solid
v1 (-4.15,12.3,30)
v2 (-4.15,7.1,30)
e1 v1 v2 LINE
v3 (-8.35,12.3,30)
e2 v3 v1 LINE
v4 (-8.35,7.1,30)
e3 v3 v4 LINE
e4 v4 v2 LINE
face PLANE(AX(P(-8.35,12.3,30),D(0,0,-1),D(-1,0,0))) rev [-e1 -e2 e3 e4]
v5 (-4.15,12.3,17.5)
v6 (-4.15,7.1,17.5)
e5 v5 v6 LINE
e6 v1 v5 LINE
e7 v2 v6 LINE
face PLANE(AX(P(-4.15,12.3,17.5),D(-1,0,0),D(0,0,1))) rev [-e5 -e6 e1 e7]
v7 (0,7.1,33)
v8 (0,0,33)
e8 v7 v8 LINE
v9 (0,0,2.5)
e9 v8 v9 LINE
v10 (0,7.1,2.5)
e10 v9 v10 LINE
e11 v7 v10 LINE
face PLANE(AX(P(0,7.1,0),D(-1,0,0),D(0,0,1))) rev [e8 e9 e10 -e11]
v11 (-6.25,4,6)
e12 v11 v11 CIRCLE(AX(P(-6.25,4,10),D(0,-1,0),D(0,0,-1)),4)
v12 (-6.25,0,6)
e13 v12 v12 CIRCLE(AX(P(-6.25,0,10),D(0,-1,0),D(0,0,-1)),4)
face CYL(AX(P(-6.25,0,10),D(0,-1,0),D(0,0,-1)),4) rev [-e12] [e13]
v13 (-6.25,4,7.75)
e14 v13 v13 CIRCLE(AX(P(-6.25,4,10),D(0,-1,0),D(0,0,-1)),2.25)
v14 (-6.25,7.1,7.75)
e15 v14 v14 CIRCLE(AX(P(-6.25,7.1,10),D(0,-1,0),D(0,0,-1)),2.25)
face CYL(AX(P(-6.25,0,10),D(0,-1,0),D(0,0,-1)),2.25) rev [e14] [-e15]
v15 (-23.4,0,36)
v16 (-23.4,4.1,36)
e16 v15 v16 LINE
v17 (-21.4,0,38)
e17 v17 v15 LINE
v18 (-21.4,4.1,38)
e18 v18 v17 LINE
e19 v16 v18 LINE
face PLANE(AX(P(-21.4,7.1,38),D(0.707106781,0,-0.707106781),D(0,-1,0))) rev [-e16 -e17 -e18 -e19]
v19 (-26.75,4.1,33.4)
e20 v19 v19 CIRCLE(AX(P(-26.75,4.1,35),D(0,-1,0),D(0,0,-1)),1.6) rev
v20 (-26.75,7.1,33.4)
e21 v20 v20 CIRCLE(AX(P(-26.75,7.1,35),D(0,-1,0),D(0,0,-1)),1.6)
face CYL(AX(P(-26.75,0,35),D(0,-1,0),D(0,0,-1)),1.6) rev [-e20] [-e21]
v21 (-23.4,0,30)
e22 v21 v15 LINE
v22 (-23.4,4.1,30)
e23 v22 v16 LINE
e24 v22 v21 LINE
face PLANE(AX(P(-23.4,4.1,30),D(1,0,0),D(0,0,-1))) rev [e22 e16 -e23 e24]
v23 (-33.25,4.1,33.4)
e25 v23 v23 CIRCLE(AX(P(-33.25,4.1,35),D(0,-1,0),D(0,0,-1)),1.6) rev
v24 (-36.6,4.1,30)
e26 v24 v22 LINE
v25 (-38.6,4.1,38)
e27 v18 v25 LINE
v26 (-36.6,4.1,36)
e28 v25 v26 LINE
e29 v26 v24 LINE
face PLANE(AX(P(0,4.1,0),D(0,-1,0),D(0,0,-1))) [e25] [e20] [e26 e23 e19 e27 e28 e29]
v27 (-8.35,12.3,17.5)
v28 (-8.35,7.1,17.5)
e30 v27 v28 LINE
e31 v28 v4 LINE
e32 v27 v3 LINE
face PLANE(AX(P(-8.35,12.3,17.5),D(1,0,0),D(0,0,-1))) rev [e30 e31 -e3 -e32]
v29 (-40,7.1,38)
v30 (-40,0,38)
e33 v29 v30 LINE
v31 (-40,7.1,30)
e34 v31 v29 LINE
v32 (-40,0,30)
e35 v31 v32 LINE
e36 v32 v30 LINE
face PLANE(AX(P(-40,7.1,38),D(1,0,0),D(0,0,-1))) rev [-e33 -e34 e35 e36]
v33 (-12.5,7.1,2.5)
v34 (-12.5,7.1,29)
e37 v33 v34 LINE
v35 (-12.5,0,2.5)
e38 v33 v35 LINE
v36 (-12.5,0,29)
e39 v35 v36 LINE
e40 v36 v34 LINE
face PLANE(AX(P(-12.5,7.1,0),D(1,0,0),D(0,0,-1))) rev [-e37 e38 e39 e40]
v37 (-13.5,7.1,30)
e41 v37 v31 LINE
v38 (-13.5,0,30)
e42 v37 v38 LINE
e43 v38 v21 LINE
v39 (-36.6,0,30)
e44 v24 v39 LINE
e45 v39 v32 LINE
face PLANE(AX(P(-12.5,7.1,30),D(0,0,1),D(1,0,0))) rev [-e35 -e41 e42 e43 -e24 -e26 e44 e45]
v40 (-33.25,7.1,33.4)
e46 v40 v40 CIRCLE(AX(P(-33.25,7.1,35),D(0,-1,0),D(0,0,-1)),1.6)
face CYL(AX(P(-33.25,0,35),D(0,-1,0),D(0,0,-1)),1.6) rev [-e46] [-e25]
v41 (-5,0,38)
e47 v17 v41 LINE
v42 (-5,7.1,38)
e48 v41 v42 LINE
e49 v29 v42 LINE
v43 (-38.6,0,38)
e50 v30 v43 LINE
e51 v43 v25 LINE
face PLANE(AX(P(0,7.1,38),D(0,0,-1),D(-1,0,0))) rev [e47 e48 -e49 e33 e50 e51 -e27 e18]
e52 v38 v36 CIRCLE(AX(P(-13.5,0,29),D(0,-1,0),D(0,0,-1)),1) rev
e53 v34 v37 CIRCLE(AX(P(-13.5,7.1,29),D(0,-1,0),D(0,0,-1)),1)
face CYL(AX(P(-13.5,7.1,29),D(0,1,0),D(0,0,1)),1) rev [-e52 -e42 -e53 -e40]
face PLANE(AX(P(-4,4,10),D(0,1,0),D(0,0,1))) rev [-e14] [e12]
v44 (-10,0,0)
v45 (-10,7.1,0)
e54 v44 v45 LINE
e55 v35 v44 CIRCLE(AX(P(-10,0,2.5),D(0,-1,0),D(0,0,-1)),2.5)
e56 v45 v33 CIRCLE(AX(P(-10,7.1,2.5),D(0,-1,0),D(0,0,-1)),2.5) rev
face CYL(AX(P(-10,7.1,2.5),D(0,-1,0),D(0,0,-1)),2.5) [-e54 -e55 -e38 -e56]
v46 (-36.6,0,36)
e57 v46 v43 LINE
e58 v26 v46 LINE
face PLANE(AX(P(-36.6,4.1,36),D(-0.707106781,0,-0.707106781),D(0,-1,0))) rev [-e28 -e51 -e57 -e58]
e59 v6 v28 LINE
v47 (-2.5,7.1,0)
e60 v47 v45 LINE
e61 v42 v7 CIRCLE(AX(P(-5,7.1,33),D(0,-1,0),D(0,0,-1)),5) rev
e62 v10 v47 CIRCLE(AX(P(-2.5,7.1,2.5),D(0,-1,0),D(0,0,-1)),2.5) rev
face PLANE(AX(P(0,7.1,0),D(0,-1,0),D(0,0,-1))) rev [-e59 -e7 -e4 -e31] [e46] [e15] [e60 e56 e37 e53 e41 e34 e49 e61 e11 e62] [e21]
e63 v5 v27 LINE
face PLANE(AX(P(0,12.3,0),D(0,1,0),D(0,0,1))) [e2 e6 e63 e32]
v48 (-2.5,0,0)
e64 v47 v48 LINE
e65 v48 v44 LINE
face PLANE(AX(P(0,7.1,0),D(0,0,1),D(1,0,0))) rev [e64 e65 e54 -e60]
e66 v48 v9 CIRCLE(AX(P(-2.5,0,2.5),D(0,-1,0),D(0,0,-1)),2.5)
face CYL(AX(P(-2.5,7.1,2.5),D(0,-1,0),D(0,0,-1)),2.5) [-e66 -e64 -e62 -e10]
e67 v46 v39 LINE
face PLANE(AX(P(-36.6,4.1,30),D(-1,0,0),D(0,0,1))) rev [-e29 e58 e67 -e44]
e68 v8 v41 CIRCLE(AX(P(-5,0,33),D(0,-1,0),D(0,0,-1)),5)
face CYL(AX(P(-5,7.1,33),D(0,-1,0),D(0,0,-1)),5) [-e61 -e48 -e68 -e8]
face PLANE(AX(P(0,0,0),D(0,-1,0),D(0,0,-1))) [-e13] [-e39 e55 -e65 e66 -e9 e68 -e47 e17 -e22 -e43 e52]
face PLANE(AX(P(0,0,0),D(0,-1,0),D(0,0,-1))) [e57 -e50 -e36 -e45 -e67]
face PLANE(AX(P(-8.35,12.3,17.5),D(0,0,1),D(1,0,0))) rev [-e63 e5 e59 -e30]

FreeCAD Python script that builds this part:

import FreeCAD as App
import Part
import Sketcher
from FreeCAD import Vector
Q = App.Units.Quantity


def edges_at(feature, points):
    """Names of the edges that pass closest to the given points."""
    edges = feature.Shape.Edges
    near = lambda p: min(range(len(edges)), key=lambda i: edges[i].distToShape(Part.Vertex(*p))[0])
    return sorted({f"Edge{near(p) + 1}" for p in points})


def add_polygon(sketch, points):
    """Adds a closed chain of lines whose ends are joined by coincident constraints."""
    first, n = sketch.GeometryCount, len(points)
    for a, b in zip(points, points[1:] + points[:1]):
        sketch.addGeometry(Part.LineSegment(App.Vector(*a, 0), App.Vector(*b, 0)), False)
    for i in range(n):
        sketch.addConstraint(Sketcher.Constraint("Coincident", first + i, 2, first + (i + 1) % n, 1))

doc = App.newDocument("Part")
body = doc.addObject("PartDesign::Body", "Body")

# Sketch on XZ plane
sketch1 = body.newObject("Sketcher::SketchObject", "Sketch")
sketch1.AttachmentSupport = (doc.getObject("XZ_Plane"), [""])
sketch1.MapMode = "FlatFace"
add_polygon(sketch1, [(0, 0), (-12.5, 0), (-12.5, 30), (-40, 30), (-40, 38), (0, 38)])  # lines 0-5
sketch1.addConstraint([
    Sketcher.Constraint("Horizontal", 0),
    Sketcher.Constraint("Vertical", 1),
    Sketcher.Constraint("Horizontal", 2),
    Sketcher.Constraint("Vertical", 3),
    Sketcher.Constraint("Horizontal", 4),
    Sketcher.Constraint("Vertical", 5),
    Sketcher.Constraint("Coincident", 5, 2, -1, 1),
    Sketcher.Constraint("DistanceX", 4, 1, 4, 2, Q("40 mm")),
    Sketcher.Constraint("DistanceY", 1, 1, 1, 2, Q("30 mm")),
    Sketcher.Constraint("DistanceY", 3, 1, 3, 2, Q("8 mm")),
    Sketcher.Constraint("DistanceX", 0, 2, 0, 1, Q("12.5 mm")),
])
pad1 = body.newObject("PartDesign::Pad", "Pad")
pad1.Profile = sketch1
pad1.Length = 7.1
pad1.Reversed = True

# Sketch on XZ plane
sketch2 = body.newObject("Sketcher::SketchObject", "Sketch001")
sketch2.AttachmentSupport = (doc.getObject("XZ_Plane"), [""])
sketch2.MapMode = "FlatFace"
sketch2.AttachmentOffset = App.Placement(Vector(0, 0, -7.1), App.Rotation())
add_polygon(sketch2, [(-8.35, 17.5), (-8.35, 30), (-4.15, 30), (-4.15, 17.5)])  # lines 0-3
sketch2.addConstraint([
    Sketcher.Constraint("Vertical", 0),
    Sketcher.Constraint("Horizontal", 1),
    Sketcher.Constraint("Vertical", 2),
    Sketcher.Constraint("Horizontal", 3),
    Sketcher.Constraint("DistanceX", 1, 1, 1, 2, Q("4.2 mm")),
    Sketcher.Constraint("DistanceY", 0, 1, 0, 2, Q("12.5 mm")),
    Sketcher.Constraint("DistanceY", -1, 1, 0, 2, Q("30 mm")),
    Sketcher.Constraint("DistanceX", 0, 2, -1, 1, Q("8.35 mm")),
])
pad2 = body.newObject("PartDesign::Pad", "Pad001")
pad2.Profile = sketch2
pad2.Length = 5.2
pad2.Reversed = True

# Sketch on XZ plane
sketch3 = body.newObject("Sketcher::SketchObject", "Sketch002")
sketch3.AttachmentSupport = (doc.getObject("XZ_Plane"), [""])
sketch3.MapMode = "FlatFace"
sketch3.addGeometry(Part.Circle(Vector(-6.25, 10, 0), Vector(0, 0, 1), 2.25), False)
sketch3.addConstraint([
    Sketcher.Constraint("Diameter", 0, Q("4.5 mm")),
    Sketcher.Constraint("DistanceY", -1, 1, 0, 3, Q("10 mm")),
    Sketcher.Constraint("DistanceX", 0, 3, -1, 1, Q("6.25 mm")),
])
doc.recompute()
hole = body.newObject("PartDesign::Hole", "Hole")
hole.Profile = sketch3
hole.ThreadType = "None"
hole.Diameter = 4.5
hole.DepthType = "ThroughAll"
hole.HoleCutType = "Counterbore"
hole.HoleCutDiameter = 8
hole.HoleCutDepth = 4

# Sketch on XZ plane
sketch4 = body.newObject("Sketcher::SketchObject", "Sketch003")
sketch4.AttachmentSupport = (doc.getObject("XZ_Plane"), [""])
sketch4.MapMode = "FlatFace"
sketch4.addGeometry([
    Part.Circle(Vector(-33.25, 35, 0), Vector(0, 0, 1), 1.6),
    Part.Circle(Vector(-26.75, 35, 0), Vector(0, 0, 1), 1.6),
], False)
sketch4.addConstraint([
    Sketcher.Constraint("Equal", 0, 1),
    Sketcher.Constraint("Horizontal", 0, 3, 1, 3),
    Sketcher.Constraint("Diameter", 0, Q("3.2 mm")),
    Sketcher.Constraint("DistanceY", -1, 1, 0, 3, Q("35 mm")),
    Sketcher.Constraint("DistanceX", 0, 3, 1, 3, Q("6.5 mm")),
    Sketcher.Constraint("DistanceX", 0, 3, -1, 1, Q("33.25 mm")),
])
doc.recompute()
hole2 = body.newObject("PartDesign::Hole", "Hole001")
hole2.Profile = sketch4
hole2.ThreadType = "None"
hole2.Diameter = 3.2
hole2.DepthType = "ThroughAll"

# Sketch on XZ plane
sketch5 = body.newObject("Sketcher::SketchObject", "Sketch004")
sketch5.AttachmentSupport = (doc.getObject("XZ_Plane"), [""])
sketch5.MapMode = "FlatFace"
add_polygon(sketch5, [(-36.6, 38), (-36.6, 30), (-23.4, 30), (-23.4, 38)])  # lines 0-3
sketch5.addConstraint([
    Sketcher.Constraint("Vertical", 0),
    Sketcher.Constraint("Horizontal", 1),
    Sketcher.Constraint("Vertical", 2),
    Sketcher.Constraint("Horizontal", 3),
    Sketcher.Constraint("DistanceY", 0, 2, 0, 1, Q("8 mm")),
    Sketcher.Constraint("DistanceX", 1, 1, 1, 2, Q("13.2 mm")),
    Sketcher.Constraint("DistanceY", -1, 1, 0, 2, Q("30 mm")),
    Sketcher.Constraint("DistanceX", 0, 2, -1, 1, Q("36.6 mm")),
])
pocket1 = body.newObject("PartDesign::Pocket", "Pocket")
pocket1.Profile = sketch5
pocket1.Length = 4.1
doc.recompute()

fillet = body.newObject("PartDesign::Fillet", "Fillet")
fillet.Base = (pocket1, edges_at(pocket1, [(0, 3.55, 38)]))
fillet.Radius = 5
doc.recompute()

fillet2 = body.newObject("PartDesign::Fillet", "Fillet001")
fillet2.Base = (fillet, edges_at(fillet, [(-12.5, 3.55, 0), (0, 3.55, 0)]))
fillet2.Radius = 2.5
doc.recompute()

fillet3 = body.newObject("PartDesign::Fillet", "Fillet002")
fillet3.Base = (fillet2, edges_at(fillet2, [(-12.5, 3.55, 30)]))
fillet3.Radius = 1
doc.recompute()

chamfer = body.newObject("PartDesign::Chamfer", "Chamfer")
chamfer.Base = (fillet3, edges_at(fillet3, [(-23.4, 2.05, 38), (-36.6, 2.05, 38)]))
chamfer.Size = 2

doc.recompute()
